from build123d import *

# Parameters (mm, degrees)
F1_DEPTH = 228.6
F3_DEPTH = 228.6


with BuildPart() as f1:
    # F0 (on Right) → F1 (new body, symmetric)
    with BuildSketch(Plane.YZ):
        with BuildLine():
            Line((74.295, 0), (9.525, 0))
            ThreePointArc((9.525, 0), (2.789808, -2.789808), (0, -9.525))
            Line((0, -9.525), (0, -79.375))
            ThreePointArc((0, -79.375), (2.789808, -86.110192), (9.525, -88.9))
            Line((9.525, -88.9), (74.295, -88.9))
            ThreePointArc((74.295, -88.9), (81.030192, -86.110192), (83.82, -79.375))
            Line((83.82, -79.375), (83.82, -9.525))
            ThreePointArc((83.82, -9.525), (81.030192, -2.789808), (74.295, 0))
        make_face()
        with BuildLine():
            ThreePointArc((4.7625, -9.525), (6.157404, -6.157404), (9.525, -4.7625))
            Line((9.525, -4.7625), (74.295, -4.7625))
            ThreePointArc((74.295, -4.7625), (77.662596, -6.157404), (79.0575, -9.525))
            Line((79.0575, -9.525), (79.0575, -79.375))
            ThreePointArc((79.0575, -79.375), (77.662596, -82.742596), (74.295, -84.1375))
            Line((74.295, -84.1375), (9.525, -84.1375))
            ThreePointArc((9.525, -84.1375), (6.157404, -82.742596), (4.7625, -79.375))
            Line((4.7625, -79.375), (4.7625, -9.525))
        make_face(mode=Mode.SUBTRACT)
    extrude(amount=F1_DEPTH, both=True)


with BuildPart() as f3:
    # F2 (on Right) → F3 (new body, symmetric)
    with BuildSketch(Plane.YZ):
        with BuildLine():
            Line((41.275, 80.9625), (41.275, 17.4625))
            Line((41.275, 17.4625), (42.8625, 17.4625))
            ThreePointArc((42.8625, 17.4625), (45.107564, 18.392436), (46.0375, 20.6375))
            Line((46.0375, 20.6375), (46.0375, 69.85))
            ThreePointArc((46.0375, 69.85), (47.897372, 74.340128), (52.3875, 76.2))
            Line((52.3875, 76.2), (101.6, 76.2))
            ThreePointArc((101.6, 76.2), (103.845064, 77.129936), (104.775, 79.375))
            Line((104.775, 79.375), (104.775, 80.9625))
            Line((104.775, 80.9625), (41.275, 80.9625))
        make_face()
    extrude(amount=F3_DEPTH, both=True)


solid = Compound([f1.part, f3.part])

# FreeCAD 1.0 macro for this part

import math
import FreeCAD as App
import Part
import Sketcher
Q = App.Units.Quantity

doc = App.newDocument("Part")
body = doc.addObject("PartDesign::Body", "Body")

sketch1 = body.newObject("Sketcher::SketchObject", "Sketch")
sketch1.AttachmentSupport = (doc.getObject("YZ_Plane"), [""])
sketch1.MapMode = "FlatFace"
sketch1.addGeometry([
    Part.LineSegment(App.Vector(74.3, 0, 0), App.Vector(9.5, 0, 0)),
    Part.ArcOfCircle(Part.Circle(App.Vector(9.5, -9.5, 0), App.Vector(0, 0, 1), 9.5), math.radians(90), math.radians(180)),
    Part.LineSegment(App.Vector(0, -9.5, 0), App.Vector(0, -79.4, 0)),
    Part.ArcOfCircle(Part.Circle(App.Vector(9.5, -79.4, 0), App.Vector(0, 0, 1), 9.5), math.radians(-180), math.radians(-90)),
    Part.LineSegment(App.Vector(9.5, -88.9, 0), App.Vector(74.3, -88.9, 0)),
    Part.ArcOfCircle(Part.Circle(App.Vector(74.3, -79.4, 0), App.Vector(0, 0, 1), 9.5), math.radians(-90), math.radians(0)),
    Part.LineSegment(App.Vector(83.8, -79.4, 0), App.Vector(83.8, -9.5, 0)),
    Part.ArcOfCircle(Part.Circle(App.Vector(74.3, -9.5, 0), App.Vector(0, 0, 1), 9.5), math.radians(0), math.radians(90)),
    Part.LineSegment(App.Vector(4.8, -79.4, 0), App.Vector(4.8, -9.5, 0)),
    Part.ArcOfCircle(Part.Circle(App.Vector(9.5, -9.5, 0), App.Vector(0, 0, 1), 4.8), math.radians(90), math.radians(180)),
    Part.LineSegment(App.Vector(9.5, -4.8, 0), App.Vector(74.3, -4.8, 0)),
    Part.ArcOfCircle(Part.Circle(App.Vector(74.3, -9.5, 0), App.Vector(0, 0, 1), 4.8), math.radians(0), math.radians(90)),
    Part.LineSegment(App.Vector(79.1, -9.5, 0), App.Vector(79.1, -79.4, 0)),
    Part.ArcOfCircle(Part.Circle(App.Vector(74.3, -79.4, 0), App.Vector(0, 0, 1), 4.8), math.radians(-90), math.radians(0)),
    Part.LineSegment(App.Vector(74.3, -84.1, 0), App.Vector(9.5, -84.1, 0)),
    Part.ArcOfCircle(Part.Circle(App.Vector(9.5, -79.4, 0), App.Vector(0, 0, 1), 4.8), math.radians(-180), math.radians(-90)),
], False)
sketch1.addConstraint([
    Sketcher.Constraint("Tangent", 0, 2, 1, 1),
    Sketcher.Constraint("Tangent", 1, 2, 2, 1),
    Sketcher.Constraint("Tangent", 2, 2, 3, 1),
    Sketcher.Constraint("Tangent", 3, 2, 4, 1),
    Sketcher.Constraint("Tangent", 4, 2, 5, 1),
    Sketcher.Constraint("Tangent", 5, 2, 6, 1),
    Sketcher.Constraint("Tangent", 6, 2, 7, 1),
    Sketcher.Constraint("Tangent", 7, 2, 0, 1),
    Sketcher.Constraint("Tangent", 8, 2, 9, 2),
    Sketcher.Constraint("Tangent", 9, 1, 10, 1),
    Sketcher.Constraint("Tangent", 10, 2, 11, 2),
    Sketcher.Constraint("Tangent", 11, 1, 12, 1),
    Sketcher.Constraint("Tangent", 12, 2, 13, 2),
    Sketcher.Constraint("Tangent", 13, 1, 14, 1),
    Sketcher.Constraint("Tangent", 14, 2, 15, 2),
    Sketcher.Constraint("Tangent", 15, 1, 8, 1),
    Sketcher.Constraint("Horizontal", 0),
    Sketcher.Constraint("Vertical", 2),
    Sketcher.Constraint("Horizontal", 4),
    Sketcher.Constraint("Vertical", 6),
    Sketcher.Constraint("Vertical", 8),
    Sketcher.Constraint("Horizontal", 10),
    Sketcher.Constraint("Vertical", 12),
    Sketcher.Constraint("Horizontal", 14),
    Sketcher.Constraint("Coincident", 9, 3, 1, 3),
    Sketcher.Constraint("Coincident", 11, 3, 7, 3),
    Sketcher.Constraint("Coincident", 13, 3, 5, 3),
    Sketcher.Constraint("Equal", 1, 3),
    Sketcher.Constraint("Equal", 3, 5),
    Sketcher.Constraint("Equal", 5, 7),
    Sketcher.Constraint("Equal", 13, 15),
    Sketcher.Constraint("PointOnObject", 0, 2, -1),
    Sketcher.Constraint("PointOnObject", 1, 2, -2),
    Sketcher.Constraint("Radius", 1, Q("0.375 in")),
    Sketcher.Constraint("Radius", 9, Q("0.1875 in")),
    Sketcher.Constraint("DistanceX", 0, 2, 0, 1, Q("2.55 in")),
    Sketcher.Constraint("DistanceY", 2, 2, 2, 1, Q("2.75 in")),
])
pad1 = body.newObject("PartDesign::Pad", "Pad")
pad1.Profile = sketch1
pad1.Length = Q("18 in")
pad1.Midplane = True
body2 = doc.addObject("PartDesign::Body", "Body001")

sketch2 = body2.newObject("Sketcher::SketchObject", "Sketch001")
sketch2.AttachmentSupport = (doc.getObject("YZ_Plane001"), [""])
sketch2.MapMode = "FlatFace"
sketch2.addGeometry([
    Part.LineSegment(App.Vector(41.3, 81, 0), App.Vector(41.3, 17.5, 0)),
    Part.LineSegment(App.Vector(41.3, 17.5, 0), App.Vector(42.9, 17.5, 0)),
    Part.ArcOfCircle(Part.Circle(App.Vector(42.9, 20.6, 0), App.Vector(0, 0, 1), 3.2), math.radians(-90), math.radians(0)),
    Part.LineSegment(App.Vector(46, 20.6, 0), App.Vector(46, 69.8, 0)),
    Part.ArcOfCircle(Part.Circle(App.Vector(52.4, 69.8, 0), App.Vector(0, 0, 1), 6.4), math.radians(90), math.radians(180)),
    Part.LineSegment(App.Vector(52.4, 76.2, 0), App.Vector(101.6, 76.2, 0)),
    Part.ArcOfCircle(Part.Circle(App.Vector(101.6, 79.4, 0), App.Vector(0, 0, 1), 3.2), math.radians(-90), math.radians(0)),
    Part.LineSegment(App.Vector(104.8, 79.4, 0), App.Vector(104.8, 81, 0)),
    Part.LineSegment(App.Vector(104.8, 81, 0), App.Vector(41.3, 81, 0)),
], False)
sketch2.addConstraint([
    Sketcher.Constraint("Coincident", 0, 2, 1, 1),
    Sketcher.Constraint("Tangent", 1, 2, 2, 1),
    Sketcher.Constraint("Tangent", 2, 2, 3, 1),
    Sketcher.Constraint("Tangent", 3, 2, 4, 2),
    Sketcher.Constraint("Tangent", 4, 1, 5, 1),
    Sketcher.Constraint("Tangent", 5, 2, 6, 1),
    Sketcher.Constraint("Tangent", 6, 2, 7, 1),
    Sketcher.Constraint("Coincident", 7, 2, 8, 1),
    Sketcher.Constraint("Coincident", 8, 2, 0, 1),
    Sketcher.Constraint("Vertical", 0),
    Sketcher.Constraint("Horizontal", 1),
    Sketcher.Constraint("Vertical", 3),
    Sketcher.Constraint("Horizontal", 5),
    Sketcher.Constraint("Vertical", 7),
    Sketcher.Constraint("Horizontal", 8),
    Sketcher.Constraint("Equal", 2, 6),
    Sketcher.Constraint("Equal", 8, 0),
    Sketcher.Constraint("Equal", 5, 3),
    Sketcher.Constraint("Radius", 4, Q("0.25 in")),
    Sketcher.Constraint("DistanceX", 8, 2, 8, 1, Q("2.5 in")),
    Sketcher.Constraint("DistanceX", -1, 1, 6, 3, Q("4 in")),
    Sketcher.Constraint("DistanceY", -1, 1, 4, 1, Q("3 in")),
    Sketcher.Constraint("Radius", 2, Q("0.125 in")),
    Sketcher.Constraint("DistanceX", 1, 1, 1, 2, Q("0.0625 in")),
])
pad2 = body2.newObject("PartDesign::Pad", "Pad001")
pad2.Profile = sketch2
pad2.Length = Q("18 in")
pad2.Midplane = True

doc.recompute()
